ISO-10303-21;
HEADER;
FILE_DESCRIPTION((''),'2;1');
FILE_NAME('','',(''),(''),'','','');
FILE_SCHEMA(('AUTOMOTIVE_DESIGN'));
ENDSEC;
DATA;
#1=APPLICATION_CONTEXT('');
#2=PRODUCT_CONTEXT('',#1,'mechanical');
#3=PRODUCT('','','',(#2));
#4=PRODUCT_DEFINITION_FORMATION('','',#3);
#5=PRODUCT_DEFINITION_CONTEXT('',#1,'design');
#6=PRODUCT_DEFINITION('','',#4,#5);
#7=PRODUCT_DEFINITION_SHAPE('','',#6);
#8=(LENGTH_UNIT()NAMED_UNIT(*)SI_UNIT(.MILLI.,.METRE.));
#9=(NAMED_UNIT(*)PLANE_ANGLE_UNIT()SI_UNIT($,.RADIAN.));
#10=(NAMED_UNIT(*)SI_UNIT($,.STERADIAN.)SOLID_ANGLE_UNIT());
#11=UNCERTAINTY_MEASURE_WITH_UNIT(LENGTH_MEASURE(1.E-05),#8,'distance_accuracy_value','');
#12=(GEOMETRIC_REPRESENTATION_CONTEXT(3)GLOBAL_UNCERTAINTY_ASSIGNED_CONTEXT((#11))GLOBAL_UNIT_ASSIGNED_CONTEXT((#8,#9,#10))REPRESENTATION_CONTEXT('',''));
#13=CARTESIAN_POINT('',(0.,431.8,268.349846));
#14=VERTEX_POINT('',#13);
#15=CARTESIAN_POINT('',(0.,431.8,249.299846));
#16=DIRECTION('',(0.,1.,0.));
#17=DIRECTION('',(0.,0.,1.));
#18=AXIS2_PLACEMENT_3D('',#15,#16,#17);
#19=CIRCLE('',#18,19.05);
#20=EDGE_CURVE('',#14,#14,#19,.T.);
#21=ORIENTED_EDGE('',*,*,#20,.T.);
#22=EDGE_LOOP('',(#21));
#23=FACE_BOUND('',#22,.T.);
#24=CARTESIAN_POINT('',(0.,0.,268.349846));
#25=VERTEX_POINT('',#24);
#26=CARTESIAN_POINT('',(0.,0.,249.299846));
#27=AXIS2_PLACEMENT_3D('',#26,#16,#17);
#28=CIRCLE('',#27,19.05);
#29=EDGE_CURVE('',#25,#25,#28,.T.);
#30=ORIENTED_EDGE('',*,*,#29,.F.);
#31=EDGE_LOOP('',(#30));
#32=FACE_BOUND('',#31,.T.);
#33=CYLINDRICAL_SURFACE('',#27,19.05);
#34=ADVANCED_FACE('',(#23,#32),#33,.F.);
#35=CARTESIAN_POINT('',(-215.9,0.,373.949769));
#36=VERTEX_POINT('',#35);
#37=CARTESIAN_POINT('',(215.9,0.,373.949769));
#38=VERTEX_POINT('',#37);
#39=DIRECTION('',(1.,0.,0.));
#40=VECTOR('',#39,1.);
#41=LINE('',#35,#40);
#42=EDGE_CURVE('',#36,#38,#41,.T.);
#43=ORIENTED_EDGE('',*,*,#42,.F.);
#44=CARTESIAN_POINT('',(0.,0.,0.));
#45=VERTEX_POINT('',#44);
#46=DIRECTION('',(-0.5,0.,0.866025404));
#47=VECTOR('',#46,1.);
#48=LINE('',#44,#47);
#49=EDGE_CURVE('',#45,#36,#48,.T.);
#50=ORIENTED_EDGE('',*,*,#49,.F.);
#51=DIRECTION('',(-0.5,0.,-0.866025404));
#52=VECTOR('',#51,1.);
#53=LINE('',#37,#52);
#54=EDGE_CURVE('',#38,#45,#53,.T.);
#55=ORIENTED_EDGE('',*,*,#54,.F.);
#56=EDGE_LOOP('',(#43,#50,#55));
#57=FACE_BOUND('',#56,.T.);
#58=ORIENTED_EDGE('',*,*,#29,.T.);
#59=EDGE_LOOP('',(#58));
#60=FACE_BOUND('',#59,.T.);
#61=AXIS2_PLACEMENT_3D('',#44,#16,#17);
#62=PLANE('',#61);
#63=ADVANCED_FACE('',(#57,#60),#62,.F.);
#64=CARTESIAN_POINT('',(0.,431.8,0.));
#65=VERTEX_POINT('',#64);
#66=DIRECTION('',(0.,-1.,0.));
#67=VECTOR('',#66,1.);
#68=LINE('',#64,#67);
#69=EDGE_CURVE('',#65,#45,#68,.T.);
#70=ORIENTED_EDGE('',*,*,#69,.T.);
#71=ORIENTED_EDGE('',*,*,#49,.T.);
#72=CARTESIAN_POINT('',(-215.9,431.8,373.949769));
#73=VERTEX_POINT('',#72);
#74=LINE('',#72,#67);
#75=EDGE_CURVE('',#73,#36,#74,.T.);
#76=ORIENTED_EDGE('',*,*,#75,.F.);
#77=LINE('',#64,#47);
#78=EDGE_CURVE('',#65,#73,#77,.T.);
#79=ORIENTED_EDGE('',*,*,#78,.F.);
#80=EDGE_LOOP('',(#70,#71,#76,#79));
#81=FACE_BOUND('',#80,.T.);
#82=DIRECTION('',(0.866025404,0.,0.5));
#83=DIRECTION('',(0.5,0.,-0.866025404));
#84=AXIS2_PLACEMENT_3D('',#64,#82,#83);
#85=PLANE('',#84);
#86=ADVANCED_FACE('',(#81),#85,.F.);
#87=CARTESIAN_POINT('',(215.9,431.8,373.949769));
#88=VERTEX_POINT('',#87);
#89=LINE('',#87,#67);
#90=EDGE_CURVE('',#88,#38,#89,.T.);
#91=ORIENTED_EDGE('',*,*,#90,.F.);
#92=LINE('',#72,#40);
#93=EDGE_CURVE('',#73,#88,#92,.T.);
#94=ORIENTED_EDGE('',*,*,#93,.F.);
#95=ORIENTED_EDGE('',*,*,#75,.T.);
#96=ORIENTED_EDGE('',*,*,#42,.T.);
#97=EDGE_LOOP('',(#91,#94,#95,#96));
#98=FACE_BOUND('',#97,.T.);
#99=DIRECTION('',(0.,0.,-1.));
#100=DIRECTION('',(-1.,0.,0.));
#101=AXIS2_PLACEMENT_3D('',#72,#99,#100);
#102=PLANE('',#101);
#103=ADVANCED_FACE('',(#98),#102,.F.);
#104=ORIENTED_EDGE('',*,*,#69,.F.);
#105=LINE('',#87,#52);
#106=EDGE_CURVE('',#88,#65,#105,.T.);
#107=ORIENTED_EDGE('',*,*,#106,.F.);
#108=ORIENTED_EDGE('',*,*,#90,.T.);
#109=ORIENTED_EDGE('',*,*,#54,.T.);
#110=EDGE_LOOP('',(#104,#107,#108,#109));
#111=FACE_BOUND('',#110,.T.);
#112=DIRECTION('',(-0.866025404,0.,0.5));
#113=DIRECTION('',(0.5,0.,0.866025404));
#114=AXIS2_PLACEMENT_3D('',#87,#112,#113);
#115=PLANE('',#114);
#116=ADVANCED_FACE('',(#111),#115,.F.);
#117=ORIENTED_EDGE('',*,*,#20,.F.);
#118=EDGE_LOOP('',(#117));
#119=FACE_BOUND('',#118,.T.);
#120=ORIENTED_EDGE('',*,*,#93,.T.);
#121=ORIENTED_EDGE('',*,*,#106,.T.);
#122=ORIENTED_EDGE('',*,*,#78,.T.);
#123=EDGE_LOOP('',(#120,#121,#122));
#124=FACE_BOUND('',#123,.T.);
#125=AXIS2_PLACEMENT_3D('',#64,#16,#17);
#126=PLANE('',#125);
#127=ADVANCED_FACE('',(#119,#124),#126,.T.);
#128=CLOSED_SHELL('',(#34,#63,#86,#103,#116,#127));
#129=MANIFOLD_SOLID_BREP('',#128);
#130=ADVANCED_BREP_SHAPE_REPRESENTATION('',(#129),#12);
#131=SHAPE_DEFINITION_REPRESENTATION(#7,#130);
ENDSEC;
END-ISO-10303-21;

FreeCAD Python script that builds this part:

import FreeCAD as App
import Part
import Sketcher
Q = App.Units.Quantity


def add_polygon(sketch, points):
    """Adds a closed chain of lines whose ends are joined by coincident constraints."""
    first, n = sketch.GeometryCount, len(points)
    for a, b in zip(points, points[1:] + points[:1]):
        sketch.addGeometry(Part.LineSegment(App.Vector(*a, 0), App.Vector(*b, 0)), False)
    for i in range(n):
        sketch.addConstraint(Sketcher.Constraint("Coincident", first + i, 2, first + (i + 1) % n, 1))

doc = App.newDocument("Part")
body = doc.addObject("PartDesign::Body", "Body")

# Sketch on XZ plane
sketch1 = body.newObject("Sketcher::SketchObject", "Sketch")
sketch1.AttachmentSupport = (doc.getObject("XZ_Plane"), [""])
sketch1.MapMode = "FlatFace"
add_polygon(sketch1, [(0, 0), (-216, 374), (216, 374)])  # lines 0-2
sketch1.addConstraint([
    Sketcher.Constraint("Horizontal", 1),
    Sketcher.Constraint("Coincident", 2, 2, -1, 1),
    Sketcher.Constraint("Equal", 0, 2),
    Sketcher.Constraint("DistanceX", 1, 1, 1, 2, Q("17 in")),
    Sketcher.Constraint("Distance", 0, Q("17 in")),
])
pad1 = body.newObject("PartDesign::Pad", "Pad")
pad1.Profile = sketch1
pad1.Length = Q("17 in")
pad1.Reversed = True

# Sketch on XZ plane
sketch2 = body.newObject("Sketcher::SketchObject", "Sketch001")
sketch2.AttachmentSupport = (doc.getObject("XZ_Plane"), [""])
sketch2.MapMode = "FlatFace"
sketch2.AttachmentOffset = App.Placement(App.Vector(0, 0, -17 * 25.4), App.Rotation())
sketch2.addGeometry(Part.Circle(App.Vector(0, 249, 0), App.Vector(0, 0, 1), 19), False)
sketch2.addConstraint([
    Sketcher.Constraint("PointOnObject", 0, 3, -2),
    Sketcher.Constraint("Diameter", 0, Q("1.5 in")),
    Sketcher.Constraint("DistanceY", -1, 1, 0, 3, Q("249.299846 mm")),
])
pocket1 = body.newObject("PartDesign::Pocket", "Pocket")
pocket1.Profile = sketch2
pocket1.Type = "ThroughAll"
pocket1.Reversed = True

doc.recompute()
